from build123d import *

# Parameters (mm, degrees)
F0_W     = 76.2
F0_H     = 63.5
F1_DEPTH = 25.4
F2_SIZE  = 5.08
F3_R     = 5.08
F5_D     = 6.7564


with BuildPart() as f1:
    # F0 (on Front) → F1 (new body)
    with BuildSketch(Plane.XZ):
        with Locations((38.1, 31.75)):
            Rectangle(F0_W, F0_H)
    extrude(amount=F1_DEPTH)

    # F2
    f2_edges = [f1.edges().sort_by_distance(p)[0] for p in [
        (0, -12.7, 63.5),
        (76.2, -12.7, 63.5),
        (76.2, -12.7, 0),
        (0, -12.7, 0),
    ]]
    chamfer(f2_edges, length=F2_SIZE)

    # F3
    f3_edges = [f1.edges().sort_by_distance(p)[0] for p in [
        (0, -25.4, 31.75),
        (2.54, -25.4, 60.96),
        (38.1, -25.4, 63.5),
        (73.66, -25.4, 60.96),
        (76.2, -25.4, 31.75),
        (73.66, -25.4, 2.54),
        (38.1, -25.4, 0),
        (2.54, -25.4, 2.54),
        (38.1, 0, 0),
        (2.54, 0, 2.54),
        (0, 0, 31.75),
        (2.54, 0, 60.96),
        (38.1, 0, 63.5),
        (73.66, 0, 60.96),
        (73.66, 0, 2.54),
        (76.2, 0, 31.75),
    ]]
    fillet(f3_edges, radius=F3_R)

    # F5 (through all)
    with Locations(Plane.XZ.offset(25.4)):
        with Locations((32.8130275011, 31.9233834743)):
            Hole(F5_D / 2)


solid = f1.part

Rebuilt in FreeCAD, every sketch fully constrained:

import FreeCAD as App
import Part
import Sketcher
from FreeCAD import Vector
Q = App.Units.Quantity


def edges_at(feature, points):
    """Names of the edges that pass closest to the given points."""
    edges = feature.Shape.Edges
    near = lambda p: min(range(len(edges)), key=lambda i: edges[i].distToShape(Part.Vertex(*p))[0])
    return sorted({f"Edge{near(p) + 1}" for p in points})

doc = App.newDocument("Part")
body = doc.addObject("PartDesign::Body", "Body")

sketch1 = doc.addObject("Sketcher::SketchObject", "Sketch")
body.addObject(sketch1)
sketch1.AttachmentSupport = (doc.XZ_Plane, [""])
sketch1.MapMode = "FlatFace"
sketch1.addGeometry([
    Part.LineSegment(Vector(0, 63.5, 0), Vector(0, 0, 0)),
    Part.LineSegment(Vector(0, 0, 0), Vector(76.2, 0, 0)),
    Part.LineSegment(Vector(76.2, 0, 0), Vector(76.2, 63.5, 0)),
    Part.LineSegment(Vector(76.2, 63.5, 0), Vector(0, 63.5, 0)),
], False)
sketch1.addConstraint([
    Sketcher.Constraint("Coincident", 0, 2, 1, 1),
    Sketcher.Constraint("Coincident", 1, 2, 2, 1),
    Sketcher.Constraint("Coincident", 2, 2, 3, 1),
    Sketcher.Constraint("Coincident", 3, 2, 0, 1),
    Sketcher.Constraint("Vertical", 0),
    Sketcher.Constraint("Horizontal", 1),
    Sketcher.Constraint("Vertical", 2),
    Sketcher.Constraint("Horizontal", 3),
    Sketcher.Constraint("Coincident", 0, 2, -1, 1),
    Sketcher.Constraint("DistanceX", 1, 1, 1, 2, Q("3 in")),
    Sketcher.Constraint("DistanceY", 0, 2, 0, 1, Q("2.5 in")),
])
pad1 = doc.addObject("PartDesign::Pad", "Pad")
body.addObject(pad1)
pad1.Profile = sketch1
pad1.Length = Q("1 in")
doc.recompute()

chamfer = doc.addObject("PartDesign::Chamfer", "Chamfer")
body.addObject(chamfer)
chamfer.Base = (pad1, edges_at(pad1, [
    (0, -12.7, 63.5),
    (76.2, -12.7, 63.5),
    (76.2, -12.7, 0),
    (0, -12.7, 0),
]))
chamfer.Size = Q("0.2 in")
doc.recompute()

fillet = doc.addObject("PartDesign::Fillet", "Fillet")
body.addObject(fillet)
fillet.Base = (chamfer, edges_at(chamfer, [
    (0, -25.4, 31.75),
    (2.54, -25.4, 60.96),
    (38.1, -25.4, 63.5),
    (73.66, -25.4, 60.96),
    (76.2, -25.4, 31.75),
    (73.66, -25.4, 2.54),
    (38.1, -25.4, 0),
    (2.54, -25.4, 2.54),
    (38.1, 0, 0),
    (2.54, 0, 2.54),
    (0, 0, 31.75),
    (2.54, 0, 60.96),
    (38.1, 0, 63.5),
    (73.66, 0, 60.96),
    (73.66, 0, 2.54),
    (76.2, 0, 31.75),
]))
fillet.Radius = Q("0.2 in")

sketch2 = doc.addObject("Sketcher::SketchObject", "Sketch001")
body.addObject(sketch2)
sketch2.AttachmentSupport = (doc.XZ_Plane, [""])
sketch2.MapMode = "FlatFace"
sketch2.AttachmentOffset = App.Placement(Vector(0, 0, 1 * 25.4), App.Rotation())
sketch2.addGeometry(Part.Circle(Vector(32.813028, 31.923383, 0), Vector(0, 0, 1), 3.3782), False)
sketch2.addConstraint([
    Sketcher.Constraint("Diameter", 0, Q("0.266 in")),
    Sketcher.Constraint("DistanceX", -1, 1, 0, 3, Q("32.813028 mm")),
    Sketcher.Constraint("DistanceY", -1, 1, 0, 3, Q("31.923383 mm")),
])
doc.recompute()
hole = doc.addObject("PartDesign::Hole", "Hole")
body.addObject(hole)
hole.Profile = sketch2
hole.ThreadType = "None"
hole.Diameter = Q("0.266 in")
hole.DepthType = "ThroughAll"

doc.recompute()
